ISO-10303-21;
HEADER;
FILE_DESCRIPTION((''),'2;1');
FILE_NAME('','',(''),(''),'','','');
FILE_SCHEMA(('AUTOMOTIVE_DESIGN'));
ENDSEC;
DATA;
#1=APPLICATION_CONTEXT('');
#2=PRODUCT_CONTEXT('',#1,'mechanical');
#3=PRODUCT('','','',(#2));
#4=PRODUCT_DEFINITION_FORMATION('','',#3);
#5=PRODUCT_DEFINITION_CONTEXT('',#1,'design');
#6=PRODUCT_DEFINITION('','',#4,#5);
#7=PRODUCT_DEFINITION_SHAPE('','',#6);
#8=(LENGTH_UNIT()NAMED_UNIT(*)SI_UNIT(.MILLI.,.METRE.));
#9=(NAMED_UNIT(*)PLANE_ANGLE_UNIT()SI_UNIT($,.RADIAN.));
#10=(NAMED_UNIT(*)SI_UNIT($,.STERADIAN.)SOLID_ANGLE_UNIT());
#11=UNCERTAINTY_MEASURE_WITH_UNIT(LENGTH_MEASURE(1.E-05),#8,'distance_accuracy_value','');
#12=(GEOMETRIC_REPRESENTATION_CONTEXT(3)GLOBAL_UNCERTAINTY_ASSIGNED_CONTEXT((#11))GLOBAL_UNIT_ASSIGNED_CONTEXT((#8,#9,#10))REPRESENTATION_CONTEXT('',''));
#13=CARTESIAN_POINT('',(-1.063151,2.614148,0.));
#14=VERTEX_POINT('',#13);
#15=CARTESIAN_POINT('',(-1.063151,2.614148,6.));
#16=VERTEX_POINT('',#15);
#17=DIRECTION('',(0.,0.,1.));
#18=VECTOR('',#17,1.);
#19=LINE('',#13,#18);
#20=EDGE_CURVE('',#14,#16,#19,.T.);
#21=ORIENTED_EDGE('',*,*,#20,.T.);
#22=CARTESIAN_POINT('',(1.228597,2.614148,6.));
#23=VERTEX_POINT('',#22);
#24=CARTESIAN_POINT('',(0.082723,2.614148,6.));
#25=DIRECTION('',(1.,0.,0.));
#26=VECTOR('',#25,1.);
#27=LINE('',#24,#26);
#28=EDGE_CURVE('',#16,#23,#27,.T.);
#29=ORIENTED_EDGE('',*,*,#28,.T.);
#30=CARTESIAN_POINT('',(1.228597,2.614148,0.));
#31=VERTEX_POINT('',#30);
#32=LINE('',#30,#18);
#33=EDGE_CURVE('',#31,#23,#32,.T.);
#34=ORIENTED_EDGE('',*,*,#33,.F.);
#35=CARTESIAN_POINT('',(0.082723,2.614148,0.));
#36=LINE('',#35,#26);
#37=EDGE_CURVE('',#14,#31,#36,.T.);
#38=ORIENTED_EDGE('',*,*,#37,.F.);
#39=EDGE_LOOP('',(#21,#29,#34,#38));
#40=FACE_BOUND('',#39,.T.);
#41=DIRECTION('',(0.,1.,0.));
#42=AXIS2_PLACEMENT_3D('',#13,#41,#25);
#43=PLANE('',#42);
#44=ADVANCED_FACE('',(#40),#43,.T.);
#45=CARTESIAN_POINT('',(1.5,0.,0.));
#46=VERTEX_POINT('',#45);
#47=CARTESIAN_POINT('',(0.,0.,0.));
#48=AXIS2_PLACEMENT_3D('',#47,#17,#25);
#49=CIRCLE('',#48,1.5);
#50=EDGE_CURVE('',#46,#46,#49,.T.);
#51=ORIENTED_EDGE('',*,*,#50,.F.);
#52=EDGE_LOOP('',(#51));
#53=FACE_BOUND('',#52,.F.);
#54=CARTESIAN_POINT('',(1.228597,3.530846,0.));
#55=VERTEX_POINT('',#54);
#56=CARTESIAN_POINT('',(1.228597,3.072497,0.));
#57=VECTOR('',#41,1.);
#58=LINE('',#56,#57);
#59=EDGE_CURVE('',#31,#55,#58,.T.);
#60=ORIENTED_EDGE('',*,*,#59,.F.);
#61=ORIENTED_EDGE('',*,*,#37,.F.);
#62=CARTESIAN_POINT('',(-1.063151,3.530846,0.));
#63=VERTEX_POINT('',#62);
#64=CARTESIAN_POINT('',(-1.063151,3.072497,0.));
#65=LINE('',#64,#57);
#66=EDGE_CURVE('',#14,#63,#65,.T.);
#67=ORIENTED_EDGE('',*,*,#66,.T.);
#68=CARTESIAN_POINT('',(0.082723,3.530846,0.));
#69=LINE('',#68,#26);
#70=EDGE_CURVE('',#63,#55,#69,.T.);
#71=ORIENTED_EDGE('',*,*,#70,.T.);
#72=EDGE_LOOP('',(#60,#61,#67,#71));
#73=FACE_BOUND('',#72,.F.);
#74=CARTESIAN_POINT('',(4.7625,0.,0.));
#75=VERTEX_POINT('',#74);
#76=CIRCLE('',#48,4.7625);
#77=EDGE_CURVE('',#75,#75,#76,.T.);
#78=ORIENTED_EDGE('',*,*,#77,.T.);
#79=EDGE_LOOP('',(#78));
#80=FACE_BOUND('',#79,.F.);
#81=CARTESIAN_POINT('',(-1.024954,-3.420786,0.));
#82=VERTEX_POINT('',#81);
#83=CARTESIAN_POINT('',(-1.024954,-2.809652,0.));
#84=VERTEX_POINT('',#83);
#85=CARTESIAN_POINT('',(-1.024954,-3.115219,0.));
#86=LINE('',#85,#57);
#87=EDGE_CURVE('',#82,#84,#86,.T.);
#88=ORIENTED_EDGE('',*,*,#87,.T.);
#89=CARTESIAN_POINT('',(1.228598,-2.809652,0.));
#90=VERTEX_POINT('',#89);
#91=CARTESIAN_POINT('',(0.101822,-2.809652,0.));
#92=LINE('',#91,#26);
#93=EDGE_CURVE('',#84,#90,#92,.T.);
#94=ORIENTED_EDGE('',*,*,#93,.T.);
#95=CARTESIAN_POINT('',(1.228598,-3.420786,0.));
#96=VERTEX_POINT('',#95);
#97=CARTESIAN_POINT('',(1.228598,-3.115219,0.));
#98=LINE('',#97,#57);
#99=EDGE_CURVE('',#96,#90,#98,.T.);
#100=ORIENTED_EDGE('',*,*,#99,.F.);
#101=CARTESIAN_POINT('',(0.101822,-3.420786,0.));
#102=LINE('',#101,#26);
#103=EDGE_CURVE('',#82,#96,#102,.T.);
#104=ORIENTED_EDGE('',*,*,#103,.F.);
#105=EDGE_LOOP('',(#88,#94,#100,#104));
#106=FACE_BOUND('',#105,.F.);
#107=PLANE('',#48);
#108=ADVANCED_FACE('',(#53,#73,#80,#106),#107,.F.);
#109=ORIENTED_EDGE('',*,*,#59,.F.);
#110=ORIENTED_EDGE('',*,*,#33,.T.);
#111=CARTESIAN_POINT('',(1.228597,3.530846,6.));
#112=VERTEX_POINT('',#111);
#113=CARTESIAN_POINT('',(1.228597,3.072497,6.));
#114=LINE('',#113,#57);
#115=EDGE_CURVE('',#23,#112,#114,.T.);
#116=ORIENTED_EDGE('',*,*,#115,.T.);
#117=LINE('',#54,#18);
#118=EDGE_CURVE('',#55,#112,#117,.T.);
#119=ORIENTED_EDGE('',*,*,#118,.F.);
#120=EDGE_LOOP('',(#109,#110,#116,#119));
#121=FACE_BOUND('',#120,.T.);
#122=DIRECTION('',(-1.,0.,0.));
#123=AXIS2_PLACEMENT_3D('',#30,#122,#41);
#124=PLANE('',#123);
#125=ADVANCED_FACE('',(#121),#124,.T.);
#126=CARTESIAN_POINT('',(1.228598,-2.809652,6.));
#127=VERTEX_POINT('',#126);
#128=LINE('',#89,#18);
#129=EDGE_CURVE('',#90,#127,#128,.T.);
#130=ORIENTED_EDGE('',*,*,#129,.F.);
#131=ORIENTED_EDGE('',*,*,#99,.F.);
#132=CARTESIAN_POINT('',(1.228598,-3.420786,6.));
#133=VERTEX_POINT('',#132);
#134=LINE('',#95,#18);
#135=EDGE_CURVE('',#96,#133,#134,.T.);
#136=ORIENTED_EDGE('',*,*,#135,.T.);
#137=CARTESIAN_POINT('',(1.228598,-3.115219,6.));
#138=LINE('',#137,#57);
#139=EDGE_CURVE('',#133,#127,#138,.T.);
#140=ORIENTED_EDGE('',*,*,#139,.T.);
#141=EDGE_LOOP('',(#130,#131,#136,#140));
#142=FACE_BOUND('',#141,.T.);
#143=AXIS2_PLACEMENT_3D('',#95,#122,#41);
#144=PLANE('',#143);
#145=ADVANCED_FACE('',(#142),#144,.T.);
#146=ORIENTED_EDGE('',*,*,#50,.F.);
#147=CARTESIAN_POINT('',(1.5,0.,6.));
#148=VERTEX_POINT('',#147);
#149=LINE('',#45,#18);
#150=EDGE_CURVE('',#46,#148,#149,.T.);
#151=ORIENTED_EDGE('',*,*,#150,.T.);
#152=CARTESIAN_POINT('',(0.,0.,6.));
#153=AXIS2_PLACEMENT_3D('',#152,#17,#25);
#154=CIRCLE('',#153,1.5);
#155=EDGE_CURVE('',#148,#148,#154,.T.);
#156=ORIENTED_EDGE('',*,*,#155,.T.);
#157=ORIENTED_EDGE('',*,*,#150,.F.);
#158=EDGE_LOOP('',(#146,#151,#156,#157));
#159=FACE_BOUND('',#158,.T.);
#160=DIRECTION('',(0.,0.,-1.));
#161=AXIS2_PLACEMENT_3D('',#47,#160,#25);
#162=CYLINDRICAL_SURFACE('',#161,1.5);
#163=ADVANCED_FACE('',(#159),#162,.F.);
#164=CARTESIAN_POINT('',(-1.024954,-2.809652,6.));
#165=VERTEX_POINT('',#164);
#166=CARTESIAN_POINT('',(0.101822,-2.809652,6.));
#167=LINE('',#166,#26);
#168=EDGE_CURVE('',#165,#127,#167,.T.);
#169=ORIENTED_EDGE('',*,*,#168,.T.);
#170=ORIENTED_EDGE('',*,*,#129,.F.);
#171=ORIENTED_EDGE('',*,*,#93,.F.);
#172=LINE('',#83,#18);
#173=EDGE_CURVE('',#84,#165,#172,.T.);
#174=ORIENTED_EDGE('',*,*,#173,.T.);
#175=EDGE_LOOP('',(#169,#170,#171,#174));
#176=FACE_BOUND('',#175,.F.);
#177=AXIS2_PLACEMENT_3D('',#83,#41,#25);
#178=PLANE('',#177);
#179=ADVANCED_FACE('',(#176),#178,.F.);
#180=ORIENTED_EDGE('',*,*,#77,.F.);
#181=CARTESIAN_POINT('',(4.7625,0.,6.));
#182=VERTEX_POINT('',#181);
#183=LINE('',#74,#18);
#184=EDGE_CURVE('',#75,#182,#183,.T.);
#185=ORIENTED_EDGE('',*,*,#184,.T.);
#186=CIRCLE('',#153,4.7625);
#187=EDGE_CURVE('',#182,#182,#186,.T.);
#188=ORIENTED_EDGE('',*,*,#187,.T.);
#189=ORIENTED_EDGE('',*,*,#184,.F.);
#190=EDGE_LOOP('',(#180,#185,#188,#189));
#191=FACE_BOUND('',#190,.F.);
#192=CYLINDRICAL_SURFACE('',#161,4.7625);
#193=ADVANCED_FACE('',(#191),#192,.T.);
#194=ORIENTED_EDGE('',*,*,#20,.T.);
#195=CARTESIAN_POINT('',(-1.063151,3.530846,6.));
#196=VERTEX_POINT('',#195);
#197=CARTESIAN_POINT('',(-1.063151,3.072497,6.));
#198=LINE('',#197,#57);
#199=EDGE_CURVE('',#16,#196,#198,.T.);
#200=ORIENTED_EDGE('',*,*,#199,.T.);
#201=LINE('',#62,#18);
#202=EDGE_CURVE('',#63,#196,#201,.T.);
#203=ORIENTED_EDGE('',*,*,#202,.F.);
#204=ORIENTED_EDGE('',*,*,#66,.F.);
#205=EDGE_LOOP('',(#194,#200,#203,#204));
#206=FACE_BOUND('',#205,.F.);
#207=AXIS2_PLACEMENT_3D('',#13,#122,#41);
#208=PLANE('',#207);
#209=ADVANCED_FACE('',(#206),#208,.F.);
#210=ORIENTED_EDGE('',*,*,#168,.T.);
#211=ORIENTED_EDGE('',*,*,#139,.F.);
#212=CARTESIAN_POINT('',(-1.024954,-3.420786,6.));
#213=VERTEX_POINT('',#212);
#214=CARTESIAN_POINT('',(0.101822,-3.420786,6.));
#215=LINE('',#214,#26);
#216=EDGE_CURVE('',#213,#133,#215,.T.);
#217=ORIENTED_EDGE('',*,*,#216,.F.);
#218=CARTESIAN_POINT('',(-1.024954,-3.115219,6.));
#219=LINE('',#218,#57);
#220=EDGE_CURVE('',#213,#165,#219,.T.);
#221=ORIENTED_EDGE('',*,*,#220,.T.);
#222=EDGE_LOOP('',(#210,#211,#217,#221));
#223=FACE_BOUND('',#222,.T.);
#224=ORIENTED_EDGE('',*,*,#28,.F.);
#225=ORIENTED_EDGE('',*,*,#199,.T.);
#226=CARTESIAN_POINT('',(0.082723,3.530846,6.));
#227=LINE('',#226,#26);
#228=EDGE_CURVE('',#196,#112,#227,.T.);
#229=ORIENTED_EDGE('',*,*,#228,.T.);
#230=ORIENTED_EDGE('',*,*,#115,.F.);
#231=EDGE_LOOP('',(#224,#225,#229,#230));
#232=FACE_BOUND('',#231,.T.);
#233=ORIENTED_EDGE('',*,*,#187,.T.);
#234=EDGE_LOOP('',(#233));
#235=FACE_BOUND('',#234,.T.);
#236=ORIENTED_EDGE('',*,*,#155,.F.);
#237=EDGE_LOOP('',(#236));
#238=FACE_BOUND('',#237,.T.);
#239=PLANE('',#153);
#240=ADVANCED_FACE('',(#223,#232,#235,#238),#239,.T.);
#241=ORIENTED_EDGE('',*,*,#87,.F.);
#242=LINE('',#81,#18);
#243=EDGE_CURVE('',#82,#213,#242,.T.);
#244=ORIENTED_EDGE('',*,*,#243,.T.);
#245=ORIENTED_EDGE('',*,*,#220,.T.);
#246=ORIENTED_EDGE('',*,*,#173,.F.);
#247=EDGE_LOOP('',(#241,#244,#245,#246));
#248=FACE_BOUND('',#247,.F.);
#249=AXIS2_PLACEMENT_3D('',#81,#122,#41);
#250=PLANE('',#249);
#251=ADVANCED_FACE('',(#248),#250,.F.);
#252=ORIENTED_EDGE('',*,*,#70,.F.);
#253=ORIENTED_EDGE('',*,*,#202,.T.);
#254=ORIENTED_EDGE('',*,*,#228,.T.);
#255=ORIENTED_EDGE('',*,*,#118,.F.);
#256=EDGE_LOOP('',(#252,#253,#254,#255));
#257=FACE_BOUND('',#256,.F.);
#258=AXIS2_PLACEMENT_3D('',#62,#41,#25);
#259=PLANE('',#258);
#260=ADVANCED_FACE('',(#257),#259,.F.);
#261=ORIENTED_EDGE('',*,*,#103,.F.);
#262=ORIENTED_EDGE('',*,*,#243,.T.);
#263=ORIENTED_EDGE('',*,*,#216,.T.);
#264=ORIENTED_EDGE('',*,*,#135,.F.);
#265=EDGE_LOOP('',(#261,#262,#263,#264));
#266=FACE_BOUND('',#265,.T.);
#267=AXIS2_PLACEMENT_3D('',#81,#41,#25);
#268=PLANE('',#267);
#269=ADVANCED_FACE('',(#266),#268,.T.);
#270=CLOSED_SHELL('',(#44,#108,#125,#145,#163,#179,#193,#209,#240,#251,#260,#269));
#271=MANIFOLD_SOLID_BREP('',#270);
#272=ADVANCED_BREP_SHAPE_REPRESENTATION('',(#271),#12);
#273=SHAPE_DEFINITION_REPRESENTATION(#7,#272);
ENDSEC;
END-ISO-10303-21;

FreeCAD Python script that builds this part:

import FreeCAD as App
import Part
import Sketcher

V = App.Vector
Q = App.Units.Quantity

doc = App.newDocument("Part")
body = doc.addObject("PartDesign::Body", "Body")

# Sketch on XY plane
sketch1 = body.newObject("Sketcher::SketchObject", "Sketch")
sketch1.AttachmentSupport = (doc.getObject("XY_Plane"), [""])
sketch1.MapMode = "FlatFace"
sketch1.addGeometry(Part.Circle(V(0, 0, 0), V(0, 0, 1), 4.8), False)
sketch1.addGeometry(Part.LineSegment(V(1.2, -3.4, 0), V(-1, -3.4, 0)), False)
sketch1.addGeometry(Part.LineSegment(V(-1, -3.4, 0), V(-1, -2.8, 0)), False)
sketch1.addGeometry(Part.LineSegment(V(-1, -2.8, 0), V(1.2, -2.8, 0)), False)
sketch1.addGeometry(Part.LineSegment(V(1.2, -2.8, 0), V(1.2, -3.4, 0)), False)
sketch1.addGeometry(Part.Circle(V(0, 0, 0), V(0, 0, 1), 1.5), False)
sketch1.addGeometry(Part.LineSegment(V(1.2, 2.6, 0), V(-1.1, 2.6, 0)), False)
sketch1.addGeometry(Part.LineSegment(V(-1.1, 2.6, 0), V(-1.1, 3.5, 0)), False)
sketch1.addGeometry(Part.LineSegment(V(-1.1, 3.5, 0), V(1.2, 3.5, 0)), False)
sketch1.addGeometry(Part.LineSegment(V(1.2, 3.5, 0), V(1.2, 2.6, 0)), False)
sketch1.addConstraint(Sketcher.Constraint("Coincident", 1, 2, 2, 1))
sketch1.addConstraint(Sketcher.Constraint("Coincident", 2, 2, 3, 1))
sketch1.addConstraint(Sketcher.Constraint("Coincident", 3, 2, 4, 1))
sketch1.addConstraint(Sketcher.Constraint("Coincident", 4, 2, 1, 1))
sketch1.addConstraint(Sketcher.Constraint("Coincident", 6, 2, 7, 1))
sketch1.addConstraint(Sketcher.Constraint("Coincident", 7, 2, 8, 1))
sketch1.addConstraint(Sketcher.Constraint("Coincident", 8, 2, 9, 1))
sketch1.addConstraint(Sketcher.Constraint("Coincident", 9, 2, 6, 1))
sketch1.addConstraint(Sketcher.Constraint("Horizontal", 1))
sketch1.addConstraint(Sketcher.Constraint("Vertical", 2))
sketch1.addConstraint(Sketcher.Constraint("Horizontal", 3))
sketch1.addConstraint(Sketcher.Constraint("Vertical", 4))
sketch1.addConstraint(Sketcher.Constraint("Horizontal", 6))
sketch1.addConstraint(Sketcher.Constraint("Vertical", 7))
sketch1.addConstraint(Sketcher.Constraint("Horizontal", 8))
sketch1.addConstraint(Sketcher.Constraint("Vertical", 9))
sketch1.addConstraint(Sketcher.Constraint("Coincident", 0, 3, -1, 1))
sketch1.addConstraint(Sketcher.Constraint("Coincident", 5, 3, -1, 1))
sketch1.addConstraint(Sketcher.Constraint("Vertical", 4, 2, 8, 2))
sketch1.addConstraint(Sketcher.Constraint("Diameter", 5, Q("3 mm")))
sketch1.addConstraint(Sketcher.Constraint("Diameter", 0, Q("9.525 mm")))
sketch1.addConstraint(Sketcher.Constraint("DistanceX", 1, 2, 1, 1, Q("2.253551 mm")))
sketch1.addConstraint(Sketcher.Constraint("DistanceY", 2, 2, 6, 2, Q("5.423801 mm")))
sketch1.addConstraint(Sketcher.Constraint("DistanceY", 2, 2, 7, 2, Q("6.340498 mm")))
sketch1.addConstraint(Sketcher.Constraint("DistanceX", 6, 2, 6, 1, Q("2.291747 mm")))
sketch1.addConstraint(Sketcher.Constraint("DistanceY", 2, 1, 2, 2, Q("0.611133 mm")))
sketch1.addConstraint(Sketcher.Constraint("DistanceX", 6, 2, -1, 1, Q("1.063151 mm")))
sketch1.addConstraint(Sketcher.Constraint("DistanceY", -1, 1, 6, 2, Q("2.614148 mm")))
pad1 = body.newObject("PartDesign::Pad", "Pad")
pad1.Profile = sketch1
pad1.Length = 6

doc.recompute()
